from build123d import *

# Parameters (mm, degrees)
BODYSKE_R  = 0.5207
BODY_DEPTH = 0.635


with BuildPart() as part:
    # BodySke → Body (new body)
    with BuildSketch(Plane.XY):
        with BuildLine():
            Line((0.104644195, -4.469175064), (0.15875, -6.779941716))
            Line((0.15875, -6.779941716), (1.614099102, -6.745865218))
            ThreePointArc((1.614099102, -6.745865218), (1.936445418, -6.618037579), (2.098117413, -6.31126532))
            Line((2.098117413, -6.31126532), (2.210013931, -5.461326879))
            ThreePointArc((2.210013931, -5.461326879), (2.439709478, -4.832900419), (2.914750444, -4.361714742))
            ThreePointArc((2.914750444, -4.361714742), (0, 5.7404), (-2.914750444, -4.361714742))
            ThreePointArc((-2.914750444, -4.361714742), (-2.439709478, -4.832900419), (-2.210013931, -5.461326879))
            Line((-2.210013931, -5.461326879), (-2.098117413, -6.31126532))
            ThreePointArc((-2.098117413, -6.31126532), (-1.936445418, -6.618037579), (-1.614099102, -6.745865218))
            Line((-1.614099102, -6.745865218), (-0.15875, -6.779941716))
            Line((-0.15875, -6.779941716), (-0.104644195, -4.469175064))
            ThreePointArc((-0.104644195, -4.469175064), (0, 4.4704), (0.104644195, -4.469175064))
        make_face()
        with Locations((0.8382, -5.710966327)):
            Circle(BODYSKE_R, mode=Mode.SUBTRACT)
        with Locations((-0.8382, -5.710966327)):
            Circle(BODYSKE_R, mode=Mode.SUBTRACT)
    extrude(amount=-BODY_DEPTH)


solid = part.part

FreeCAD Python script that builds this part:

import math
import FreeCAD as App
import Part
import Sketcher
from FreeCAD import Vector
Q = App.Units.Quantity

doc = App.newDocument("Part")
body = doc.addObject("PartDesign::Body", "Body")

# Sketch on XY plane
sketch1 = body.newObject("Sketcher::SketchObject", "Sketch")
sketch1.AttachmentSupport = (doc.getObject("XY_Plane"), [""])
sketch1.MapMode = "FlatFace"
sketch1.addGeometry([
    Part.LineSegment(Vector(0.1, -4.47, 0), Vector(0.16, -6.78, 0)),  # 0
    Part.LineSegment(Vector(0.16, -6.78, 0), Vector(1.61, -6.75, 0)),  # 1
    Part.ArcOfCircle(Part.Circle(Vector(1.6, -6.25, 0), Vector(0, 0, 1), 0.5), math.radians(-89), math.radians(-8)),  # 2
    Part.LineSegment(Vector(2.1, -6.31, 0), Vector(2.21, -5.46, 0)),  # 3
    Part.ArcOfCircle(Part.Circle(Vector(3.73, -5.66, 0), Vector(0, 0, 1), 1.54), math.radians(122), math.radians(172)),  # 4
    Part.ArcOfCircle(Part.Circle(Vector(0, 0.27, 0), Vector(0, 0, 1), 5.47), math.radians(-58), math.radians(238)),  # 5
    Part.ArcOfCircle(Part.Circle(Vector(-3.73, -5.66, 0), Vector(0, 0, 1), 1.54), math.radians(8), math.radians(58)),  # 6
    Part.LineSegment(Vector(-2.21, -5.46, 0), Vector(-2.1, -6.31, 0)),  # 7
    Part.ArcOfCircle(Part.Circle(Vector(-1.6, -6.25, 0), Vector(0, 0, 1), 0.5), math.radians(-172), math.radians(-91)),  # 8
    Part.LineSegment(Vector(-1.61, -6.75, 0), Vector(-0.16, -6.78, 0)),  # 9
    Part.LineSegment(Vector(-0.16, -6.78, 0), Vector(-0.1, -4.47, 0)),  # 10
    Part.ArcOfCircle(Part.Circle(Vector(0, 0, 0), Vector(0, 0, 1), 4.47), math.radians(-89), math.radians(269)),  # 11
    Part.Circle(Vector(-0.84, -5.71, 0), Vector(0, 0, 1), 0.52),  # 12
    Part.Circle(Vector(0.84, -5.71, 0), Vector(0, 0, 1), 0.52),  # 13
], False)
sketch1.addConstraint([
    Sketcher.Constraint("Coincident", 0, 2, 1, 1),
    Sketcher.Constraint("Tangent", 1, 2, 2, 1),
    Sketcher.Constraint("Tangent", 2, 2, 3, 1),
    Sketcher.Constraint("Tangent", 3, 2, 4, 2),
    Sketcher.Constraint("Tangent", 4, 1, 5, 1),
    Sketcher.Constraint("Tangent", 5, 2, 6, 2),
    Sketcher.Constraint("Tangent", 6, 1, 7, 1),
    Sketcher.Constraint("Tangent", 7, 2, 8, 1),
    Sketcher.Constraint("Tangent", 8, 2, 9, 1),
    Sketcher.Constraint("Coincident", 9, 2, 10, 1),
    Sketcher.Constraint("Coincident", 10, 2, 11, 2),
    Sketcher.Constraint("Coincident", 11, 1, 0, 1),
    Sketcher.Constraint("Coincident", 11, 3, -1, 1),
    Sketcher.Constraint("Equal", 4, 6),
    Sketcher.Constraint("Equal", 2, 8),
    Sketcher.Constraint("Equal", 12, 13),
    Sketcher.Constraint("Symmetric", 4, 3, 6, 3, -2),
    Sketcher.Constraint("Symmetric", 2, 3, 8, 3, -2),
    Sketcher.Constraint("Symmetric", 12, 3, 13, 3, -2),
    Sketcher.Constraint("Symmetric", 0, 2, 9, 2, -2),
    Sketcher.Constraint("Perpendicular", 0, 1),
    Sketcher.Constraint("Perpendicular", 9, 10),
    Sketcher.Constraint("Diameter", 12, Q("0.041 in")),
    Sketcher.Constraint("Radius", 11, Q("0.176 in")),
    Sketcher.Constraint("Angle", 3, Q("82.5 deg")),
    Sketcher.Constraint("Radius", 2, Q("0.5 mm")),
    Sketcher.Constraint("Distance", 0, Q("0.091 in")),
    Sketcher.Constraint("DistanceX", 12, 3, -1, 1, Q("0.033 in")),
    Sketcher.Constraint("Radius", 4, Q("1.536261 mm")),
    Sketcher.Constraint("Radius", 5, Q("5.471552 mm")),
    Sketcher.Constraint("DistanceX", 9, 2, 0, 2, Q("0.0125 in")),
    Sketcher.Constraint("DistanceX", -1, 1, 1, 2, Q("1.614099 mm")),
    Sketcher.Constraint("DistanceY", 1, 2, 13, 3, Q("1.034899 mm")),
    Sketcher.Constraint("DistanceX", 5, 2, 0, 2, Q("3.0735 mm")),
    Sketcher.Constraint("DistanceY", 4, 3, -1, 1, Q("5.661849 mm")),
])
pad1 = body.newObject("PartDesign::Pad", "Pad")
pad1.Profile = sketch1
pad1.Length = Q("0.025 in")
pad1.Reversed = True

doc.recompute()
